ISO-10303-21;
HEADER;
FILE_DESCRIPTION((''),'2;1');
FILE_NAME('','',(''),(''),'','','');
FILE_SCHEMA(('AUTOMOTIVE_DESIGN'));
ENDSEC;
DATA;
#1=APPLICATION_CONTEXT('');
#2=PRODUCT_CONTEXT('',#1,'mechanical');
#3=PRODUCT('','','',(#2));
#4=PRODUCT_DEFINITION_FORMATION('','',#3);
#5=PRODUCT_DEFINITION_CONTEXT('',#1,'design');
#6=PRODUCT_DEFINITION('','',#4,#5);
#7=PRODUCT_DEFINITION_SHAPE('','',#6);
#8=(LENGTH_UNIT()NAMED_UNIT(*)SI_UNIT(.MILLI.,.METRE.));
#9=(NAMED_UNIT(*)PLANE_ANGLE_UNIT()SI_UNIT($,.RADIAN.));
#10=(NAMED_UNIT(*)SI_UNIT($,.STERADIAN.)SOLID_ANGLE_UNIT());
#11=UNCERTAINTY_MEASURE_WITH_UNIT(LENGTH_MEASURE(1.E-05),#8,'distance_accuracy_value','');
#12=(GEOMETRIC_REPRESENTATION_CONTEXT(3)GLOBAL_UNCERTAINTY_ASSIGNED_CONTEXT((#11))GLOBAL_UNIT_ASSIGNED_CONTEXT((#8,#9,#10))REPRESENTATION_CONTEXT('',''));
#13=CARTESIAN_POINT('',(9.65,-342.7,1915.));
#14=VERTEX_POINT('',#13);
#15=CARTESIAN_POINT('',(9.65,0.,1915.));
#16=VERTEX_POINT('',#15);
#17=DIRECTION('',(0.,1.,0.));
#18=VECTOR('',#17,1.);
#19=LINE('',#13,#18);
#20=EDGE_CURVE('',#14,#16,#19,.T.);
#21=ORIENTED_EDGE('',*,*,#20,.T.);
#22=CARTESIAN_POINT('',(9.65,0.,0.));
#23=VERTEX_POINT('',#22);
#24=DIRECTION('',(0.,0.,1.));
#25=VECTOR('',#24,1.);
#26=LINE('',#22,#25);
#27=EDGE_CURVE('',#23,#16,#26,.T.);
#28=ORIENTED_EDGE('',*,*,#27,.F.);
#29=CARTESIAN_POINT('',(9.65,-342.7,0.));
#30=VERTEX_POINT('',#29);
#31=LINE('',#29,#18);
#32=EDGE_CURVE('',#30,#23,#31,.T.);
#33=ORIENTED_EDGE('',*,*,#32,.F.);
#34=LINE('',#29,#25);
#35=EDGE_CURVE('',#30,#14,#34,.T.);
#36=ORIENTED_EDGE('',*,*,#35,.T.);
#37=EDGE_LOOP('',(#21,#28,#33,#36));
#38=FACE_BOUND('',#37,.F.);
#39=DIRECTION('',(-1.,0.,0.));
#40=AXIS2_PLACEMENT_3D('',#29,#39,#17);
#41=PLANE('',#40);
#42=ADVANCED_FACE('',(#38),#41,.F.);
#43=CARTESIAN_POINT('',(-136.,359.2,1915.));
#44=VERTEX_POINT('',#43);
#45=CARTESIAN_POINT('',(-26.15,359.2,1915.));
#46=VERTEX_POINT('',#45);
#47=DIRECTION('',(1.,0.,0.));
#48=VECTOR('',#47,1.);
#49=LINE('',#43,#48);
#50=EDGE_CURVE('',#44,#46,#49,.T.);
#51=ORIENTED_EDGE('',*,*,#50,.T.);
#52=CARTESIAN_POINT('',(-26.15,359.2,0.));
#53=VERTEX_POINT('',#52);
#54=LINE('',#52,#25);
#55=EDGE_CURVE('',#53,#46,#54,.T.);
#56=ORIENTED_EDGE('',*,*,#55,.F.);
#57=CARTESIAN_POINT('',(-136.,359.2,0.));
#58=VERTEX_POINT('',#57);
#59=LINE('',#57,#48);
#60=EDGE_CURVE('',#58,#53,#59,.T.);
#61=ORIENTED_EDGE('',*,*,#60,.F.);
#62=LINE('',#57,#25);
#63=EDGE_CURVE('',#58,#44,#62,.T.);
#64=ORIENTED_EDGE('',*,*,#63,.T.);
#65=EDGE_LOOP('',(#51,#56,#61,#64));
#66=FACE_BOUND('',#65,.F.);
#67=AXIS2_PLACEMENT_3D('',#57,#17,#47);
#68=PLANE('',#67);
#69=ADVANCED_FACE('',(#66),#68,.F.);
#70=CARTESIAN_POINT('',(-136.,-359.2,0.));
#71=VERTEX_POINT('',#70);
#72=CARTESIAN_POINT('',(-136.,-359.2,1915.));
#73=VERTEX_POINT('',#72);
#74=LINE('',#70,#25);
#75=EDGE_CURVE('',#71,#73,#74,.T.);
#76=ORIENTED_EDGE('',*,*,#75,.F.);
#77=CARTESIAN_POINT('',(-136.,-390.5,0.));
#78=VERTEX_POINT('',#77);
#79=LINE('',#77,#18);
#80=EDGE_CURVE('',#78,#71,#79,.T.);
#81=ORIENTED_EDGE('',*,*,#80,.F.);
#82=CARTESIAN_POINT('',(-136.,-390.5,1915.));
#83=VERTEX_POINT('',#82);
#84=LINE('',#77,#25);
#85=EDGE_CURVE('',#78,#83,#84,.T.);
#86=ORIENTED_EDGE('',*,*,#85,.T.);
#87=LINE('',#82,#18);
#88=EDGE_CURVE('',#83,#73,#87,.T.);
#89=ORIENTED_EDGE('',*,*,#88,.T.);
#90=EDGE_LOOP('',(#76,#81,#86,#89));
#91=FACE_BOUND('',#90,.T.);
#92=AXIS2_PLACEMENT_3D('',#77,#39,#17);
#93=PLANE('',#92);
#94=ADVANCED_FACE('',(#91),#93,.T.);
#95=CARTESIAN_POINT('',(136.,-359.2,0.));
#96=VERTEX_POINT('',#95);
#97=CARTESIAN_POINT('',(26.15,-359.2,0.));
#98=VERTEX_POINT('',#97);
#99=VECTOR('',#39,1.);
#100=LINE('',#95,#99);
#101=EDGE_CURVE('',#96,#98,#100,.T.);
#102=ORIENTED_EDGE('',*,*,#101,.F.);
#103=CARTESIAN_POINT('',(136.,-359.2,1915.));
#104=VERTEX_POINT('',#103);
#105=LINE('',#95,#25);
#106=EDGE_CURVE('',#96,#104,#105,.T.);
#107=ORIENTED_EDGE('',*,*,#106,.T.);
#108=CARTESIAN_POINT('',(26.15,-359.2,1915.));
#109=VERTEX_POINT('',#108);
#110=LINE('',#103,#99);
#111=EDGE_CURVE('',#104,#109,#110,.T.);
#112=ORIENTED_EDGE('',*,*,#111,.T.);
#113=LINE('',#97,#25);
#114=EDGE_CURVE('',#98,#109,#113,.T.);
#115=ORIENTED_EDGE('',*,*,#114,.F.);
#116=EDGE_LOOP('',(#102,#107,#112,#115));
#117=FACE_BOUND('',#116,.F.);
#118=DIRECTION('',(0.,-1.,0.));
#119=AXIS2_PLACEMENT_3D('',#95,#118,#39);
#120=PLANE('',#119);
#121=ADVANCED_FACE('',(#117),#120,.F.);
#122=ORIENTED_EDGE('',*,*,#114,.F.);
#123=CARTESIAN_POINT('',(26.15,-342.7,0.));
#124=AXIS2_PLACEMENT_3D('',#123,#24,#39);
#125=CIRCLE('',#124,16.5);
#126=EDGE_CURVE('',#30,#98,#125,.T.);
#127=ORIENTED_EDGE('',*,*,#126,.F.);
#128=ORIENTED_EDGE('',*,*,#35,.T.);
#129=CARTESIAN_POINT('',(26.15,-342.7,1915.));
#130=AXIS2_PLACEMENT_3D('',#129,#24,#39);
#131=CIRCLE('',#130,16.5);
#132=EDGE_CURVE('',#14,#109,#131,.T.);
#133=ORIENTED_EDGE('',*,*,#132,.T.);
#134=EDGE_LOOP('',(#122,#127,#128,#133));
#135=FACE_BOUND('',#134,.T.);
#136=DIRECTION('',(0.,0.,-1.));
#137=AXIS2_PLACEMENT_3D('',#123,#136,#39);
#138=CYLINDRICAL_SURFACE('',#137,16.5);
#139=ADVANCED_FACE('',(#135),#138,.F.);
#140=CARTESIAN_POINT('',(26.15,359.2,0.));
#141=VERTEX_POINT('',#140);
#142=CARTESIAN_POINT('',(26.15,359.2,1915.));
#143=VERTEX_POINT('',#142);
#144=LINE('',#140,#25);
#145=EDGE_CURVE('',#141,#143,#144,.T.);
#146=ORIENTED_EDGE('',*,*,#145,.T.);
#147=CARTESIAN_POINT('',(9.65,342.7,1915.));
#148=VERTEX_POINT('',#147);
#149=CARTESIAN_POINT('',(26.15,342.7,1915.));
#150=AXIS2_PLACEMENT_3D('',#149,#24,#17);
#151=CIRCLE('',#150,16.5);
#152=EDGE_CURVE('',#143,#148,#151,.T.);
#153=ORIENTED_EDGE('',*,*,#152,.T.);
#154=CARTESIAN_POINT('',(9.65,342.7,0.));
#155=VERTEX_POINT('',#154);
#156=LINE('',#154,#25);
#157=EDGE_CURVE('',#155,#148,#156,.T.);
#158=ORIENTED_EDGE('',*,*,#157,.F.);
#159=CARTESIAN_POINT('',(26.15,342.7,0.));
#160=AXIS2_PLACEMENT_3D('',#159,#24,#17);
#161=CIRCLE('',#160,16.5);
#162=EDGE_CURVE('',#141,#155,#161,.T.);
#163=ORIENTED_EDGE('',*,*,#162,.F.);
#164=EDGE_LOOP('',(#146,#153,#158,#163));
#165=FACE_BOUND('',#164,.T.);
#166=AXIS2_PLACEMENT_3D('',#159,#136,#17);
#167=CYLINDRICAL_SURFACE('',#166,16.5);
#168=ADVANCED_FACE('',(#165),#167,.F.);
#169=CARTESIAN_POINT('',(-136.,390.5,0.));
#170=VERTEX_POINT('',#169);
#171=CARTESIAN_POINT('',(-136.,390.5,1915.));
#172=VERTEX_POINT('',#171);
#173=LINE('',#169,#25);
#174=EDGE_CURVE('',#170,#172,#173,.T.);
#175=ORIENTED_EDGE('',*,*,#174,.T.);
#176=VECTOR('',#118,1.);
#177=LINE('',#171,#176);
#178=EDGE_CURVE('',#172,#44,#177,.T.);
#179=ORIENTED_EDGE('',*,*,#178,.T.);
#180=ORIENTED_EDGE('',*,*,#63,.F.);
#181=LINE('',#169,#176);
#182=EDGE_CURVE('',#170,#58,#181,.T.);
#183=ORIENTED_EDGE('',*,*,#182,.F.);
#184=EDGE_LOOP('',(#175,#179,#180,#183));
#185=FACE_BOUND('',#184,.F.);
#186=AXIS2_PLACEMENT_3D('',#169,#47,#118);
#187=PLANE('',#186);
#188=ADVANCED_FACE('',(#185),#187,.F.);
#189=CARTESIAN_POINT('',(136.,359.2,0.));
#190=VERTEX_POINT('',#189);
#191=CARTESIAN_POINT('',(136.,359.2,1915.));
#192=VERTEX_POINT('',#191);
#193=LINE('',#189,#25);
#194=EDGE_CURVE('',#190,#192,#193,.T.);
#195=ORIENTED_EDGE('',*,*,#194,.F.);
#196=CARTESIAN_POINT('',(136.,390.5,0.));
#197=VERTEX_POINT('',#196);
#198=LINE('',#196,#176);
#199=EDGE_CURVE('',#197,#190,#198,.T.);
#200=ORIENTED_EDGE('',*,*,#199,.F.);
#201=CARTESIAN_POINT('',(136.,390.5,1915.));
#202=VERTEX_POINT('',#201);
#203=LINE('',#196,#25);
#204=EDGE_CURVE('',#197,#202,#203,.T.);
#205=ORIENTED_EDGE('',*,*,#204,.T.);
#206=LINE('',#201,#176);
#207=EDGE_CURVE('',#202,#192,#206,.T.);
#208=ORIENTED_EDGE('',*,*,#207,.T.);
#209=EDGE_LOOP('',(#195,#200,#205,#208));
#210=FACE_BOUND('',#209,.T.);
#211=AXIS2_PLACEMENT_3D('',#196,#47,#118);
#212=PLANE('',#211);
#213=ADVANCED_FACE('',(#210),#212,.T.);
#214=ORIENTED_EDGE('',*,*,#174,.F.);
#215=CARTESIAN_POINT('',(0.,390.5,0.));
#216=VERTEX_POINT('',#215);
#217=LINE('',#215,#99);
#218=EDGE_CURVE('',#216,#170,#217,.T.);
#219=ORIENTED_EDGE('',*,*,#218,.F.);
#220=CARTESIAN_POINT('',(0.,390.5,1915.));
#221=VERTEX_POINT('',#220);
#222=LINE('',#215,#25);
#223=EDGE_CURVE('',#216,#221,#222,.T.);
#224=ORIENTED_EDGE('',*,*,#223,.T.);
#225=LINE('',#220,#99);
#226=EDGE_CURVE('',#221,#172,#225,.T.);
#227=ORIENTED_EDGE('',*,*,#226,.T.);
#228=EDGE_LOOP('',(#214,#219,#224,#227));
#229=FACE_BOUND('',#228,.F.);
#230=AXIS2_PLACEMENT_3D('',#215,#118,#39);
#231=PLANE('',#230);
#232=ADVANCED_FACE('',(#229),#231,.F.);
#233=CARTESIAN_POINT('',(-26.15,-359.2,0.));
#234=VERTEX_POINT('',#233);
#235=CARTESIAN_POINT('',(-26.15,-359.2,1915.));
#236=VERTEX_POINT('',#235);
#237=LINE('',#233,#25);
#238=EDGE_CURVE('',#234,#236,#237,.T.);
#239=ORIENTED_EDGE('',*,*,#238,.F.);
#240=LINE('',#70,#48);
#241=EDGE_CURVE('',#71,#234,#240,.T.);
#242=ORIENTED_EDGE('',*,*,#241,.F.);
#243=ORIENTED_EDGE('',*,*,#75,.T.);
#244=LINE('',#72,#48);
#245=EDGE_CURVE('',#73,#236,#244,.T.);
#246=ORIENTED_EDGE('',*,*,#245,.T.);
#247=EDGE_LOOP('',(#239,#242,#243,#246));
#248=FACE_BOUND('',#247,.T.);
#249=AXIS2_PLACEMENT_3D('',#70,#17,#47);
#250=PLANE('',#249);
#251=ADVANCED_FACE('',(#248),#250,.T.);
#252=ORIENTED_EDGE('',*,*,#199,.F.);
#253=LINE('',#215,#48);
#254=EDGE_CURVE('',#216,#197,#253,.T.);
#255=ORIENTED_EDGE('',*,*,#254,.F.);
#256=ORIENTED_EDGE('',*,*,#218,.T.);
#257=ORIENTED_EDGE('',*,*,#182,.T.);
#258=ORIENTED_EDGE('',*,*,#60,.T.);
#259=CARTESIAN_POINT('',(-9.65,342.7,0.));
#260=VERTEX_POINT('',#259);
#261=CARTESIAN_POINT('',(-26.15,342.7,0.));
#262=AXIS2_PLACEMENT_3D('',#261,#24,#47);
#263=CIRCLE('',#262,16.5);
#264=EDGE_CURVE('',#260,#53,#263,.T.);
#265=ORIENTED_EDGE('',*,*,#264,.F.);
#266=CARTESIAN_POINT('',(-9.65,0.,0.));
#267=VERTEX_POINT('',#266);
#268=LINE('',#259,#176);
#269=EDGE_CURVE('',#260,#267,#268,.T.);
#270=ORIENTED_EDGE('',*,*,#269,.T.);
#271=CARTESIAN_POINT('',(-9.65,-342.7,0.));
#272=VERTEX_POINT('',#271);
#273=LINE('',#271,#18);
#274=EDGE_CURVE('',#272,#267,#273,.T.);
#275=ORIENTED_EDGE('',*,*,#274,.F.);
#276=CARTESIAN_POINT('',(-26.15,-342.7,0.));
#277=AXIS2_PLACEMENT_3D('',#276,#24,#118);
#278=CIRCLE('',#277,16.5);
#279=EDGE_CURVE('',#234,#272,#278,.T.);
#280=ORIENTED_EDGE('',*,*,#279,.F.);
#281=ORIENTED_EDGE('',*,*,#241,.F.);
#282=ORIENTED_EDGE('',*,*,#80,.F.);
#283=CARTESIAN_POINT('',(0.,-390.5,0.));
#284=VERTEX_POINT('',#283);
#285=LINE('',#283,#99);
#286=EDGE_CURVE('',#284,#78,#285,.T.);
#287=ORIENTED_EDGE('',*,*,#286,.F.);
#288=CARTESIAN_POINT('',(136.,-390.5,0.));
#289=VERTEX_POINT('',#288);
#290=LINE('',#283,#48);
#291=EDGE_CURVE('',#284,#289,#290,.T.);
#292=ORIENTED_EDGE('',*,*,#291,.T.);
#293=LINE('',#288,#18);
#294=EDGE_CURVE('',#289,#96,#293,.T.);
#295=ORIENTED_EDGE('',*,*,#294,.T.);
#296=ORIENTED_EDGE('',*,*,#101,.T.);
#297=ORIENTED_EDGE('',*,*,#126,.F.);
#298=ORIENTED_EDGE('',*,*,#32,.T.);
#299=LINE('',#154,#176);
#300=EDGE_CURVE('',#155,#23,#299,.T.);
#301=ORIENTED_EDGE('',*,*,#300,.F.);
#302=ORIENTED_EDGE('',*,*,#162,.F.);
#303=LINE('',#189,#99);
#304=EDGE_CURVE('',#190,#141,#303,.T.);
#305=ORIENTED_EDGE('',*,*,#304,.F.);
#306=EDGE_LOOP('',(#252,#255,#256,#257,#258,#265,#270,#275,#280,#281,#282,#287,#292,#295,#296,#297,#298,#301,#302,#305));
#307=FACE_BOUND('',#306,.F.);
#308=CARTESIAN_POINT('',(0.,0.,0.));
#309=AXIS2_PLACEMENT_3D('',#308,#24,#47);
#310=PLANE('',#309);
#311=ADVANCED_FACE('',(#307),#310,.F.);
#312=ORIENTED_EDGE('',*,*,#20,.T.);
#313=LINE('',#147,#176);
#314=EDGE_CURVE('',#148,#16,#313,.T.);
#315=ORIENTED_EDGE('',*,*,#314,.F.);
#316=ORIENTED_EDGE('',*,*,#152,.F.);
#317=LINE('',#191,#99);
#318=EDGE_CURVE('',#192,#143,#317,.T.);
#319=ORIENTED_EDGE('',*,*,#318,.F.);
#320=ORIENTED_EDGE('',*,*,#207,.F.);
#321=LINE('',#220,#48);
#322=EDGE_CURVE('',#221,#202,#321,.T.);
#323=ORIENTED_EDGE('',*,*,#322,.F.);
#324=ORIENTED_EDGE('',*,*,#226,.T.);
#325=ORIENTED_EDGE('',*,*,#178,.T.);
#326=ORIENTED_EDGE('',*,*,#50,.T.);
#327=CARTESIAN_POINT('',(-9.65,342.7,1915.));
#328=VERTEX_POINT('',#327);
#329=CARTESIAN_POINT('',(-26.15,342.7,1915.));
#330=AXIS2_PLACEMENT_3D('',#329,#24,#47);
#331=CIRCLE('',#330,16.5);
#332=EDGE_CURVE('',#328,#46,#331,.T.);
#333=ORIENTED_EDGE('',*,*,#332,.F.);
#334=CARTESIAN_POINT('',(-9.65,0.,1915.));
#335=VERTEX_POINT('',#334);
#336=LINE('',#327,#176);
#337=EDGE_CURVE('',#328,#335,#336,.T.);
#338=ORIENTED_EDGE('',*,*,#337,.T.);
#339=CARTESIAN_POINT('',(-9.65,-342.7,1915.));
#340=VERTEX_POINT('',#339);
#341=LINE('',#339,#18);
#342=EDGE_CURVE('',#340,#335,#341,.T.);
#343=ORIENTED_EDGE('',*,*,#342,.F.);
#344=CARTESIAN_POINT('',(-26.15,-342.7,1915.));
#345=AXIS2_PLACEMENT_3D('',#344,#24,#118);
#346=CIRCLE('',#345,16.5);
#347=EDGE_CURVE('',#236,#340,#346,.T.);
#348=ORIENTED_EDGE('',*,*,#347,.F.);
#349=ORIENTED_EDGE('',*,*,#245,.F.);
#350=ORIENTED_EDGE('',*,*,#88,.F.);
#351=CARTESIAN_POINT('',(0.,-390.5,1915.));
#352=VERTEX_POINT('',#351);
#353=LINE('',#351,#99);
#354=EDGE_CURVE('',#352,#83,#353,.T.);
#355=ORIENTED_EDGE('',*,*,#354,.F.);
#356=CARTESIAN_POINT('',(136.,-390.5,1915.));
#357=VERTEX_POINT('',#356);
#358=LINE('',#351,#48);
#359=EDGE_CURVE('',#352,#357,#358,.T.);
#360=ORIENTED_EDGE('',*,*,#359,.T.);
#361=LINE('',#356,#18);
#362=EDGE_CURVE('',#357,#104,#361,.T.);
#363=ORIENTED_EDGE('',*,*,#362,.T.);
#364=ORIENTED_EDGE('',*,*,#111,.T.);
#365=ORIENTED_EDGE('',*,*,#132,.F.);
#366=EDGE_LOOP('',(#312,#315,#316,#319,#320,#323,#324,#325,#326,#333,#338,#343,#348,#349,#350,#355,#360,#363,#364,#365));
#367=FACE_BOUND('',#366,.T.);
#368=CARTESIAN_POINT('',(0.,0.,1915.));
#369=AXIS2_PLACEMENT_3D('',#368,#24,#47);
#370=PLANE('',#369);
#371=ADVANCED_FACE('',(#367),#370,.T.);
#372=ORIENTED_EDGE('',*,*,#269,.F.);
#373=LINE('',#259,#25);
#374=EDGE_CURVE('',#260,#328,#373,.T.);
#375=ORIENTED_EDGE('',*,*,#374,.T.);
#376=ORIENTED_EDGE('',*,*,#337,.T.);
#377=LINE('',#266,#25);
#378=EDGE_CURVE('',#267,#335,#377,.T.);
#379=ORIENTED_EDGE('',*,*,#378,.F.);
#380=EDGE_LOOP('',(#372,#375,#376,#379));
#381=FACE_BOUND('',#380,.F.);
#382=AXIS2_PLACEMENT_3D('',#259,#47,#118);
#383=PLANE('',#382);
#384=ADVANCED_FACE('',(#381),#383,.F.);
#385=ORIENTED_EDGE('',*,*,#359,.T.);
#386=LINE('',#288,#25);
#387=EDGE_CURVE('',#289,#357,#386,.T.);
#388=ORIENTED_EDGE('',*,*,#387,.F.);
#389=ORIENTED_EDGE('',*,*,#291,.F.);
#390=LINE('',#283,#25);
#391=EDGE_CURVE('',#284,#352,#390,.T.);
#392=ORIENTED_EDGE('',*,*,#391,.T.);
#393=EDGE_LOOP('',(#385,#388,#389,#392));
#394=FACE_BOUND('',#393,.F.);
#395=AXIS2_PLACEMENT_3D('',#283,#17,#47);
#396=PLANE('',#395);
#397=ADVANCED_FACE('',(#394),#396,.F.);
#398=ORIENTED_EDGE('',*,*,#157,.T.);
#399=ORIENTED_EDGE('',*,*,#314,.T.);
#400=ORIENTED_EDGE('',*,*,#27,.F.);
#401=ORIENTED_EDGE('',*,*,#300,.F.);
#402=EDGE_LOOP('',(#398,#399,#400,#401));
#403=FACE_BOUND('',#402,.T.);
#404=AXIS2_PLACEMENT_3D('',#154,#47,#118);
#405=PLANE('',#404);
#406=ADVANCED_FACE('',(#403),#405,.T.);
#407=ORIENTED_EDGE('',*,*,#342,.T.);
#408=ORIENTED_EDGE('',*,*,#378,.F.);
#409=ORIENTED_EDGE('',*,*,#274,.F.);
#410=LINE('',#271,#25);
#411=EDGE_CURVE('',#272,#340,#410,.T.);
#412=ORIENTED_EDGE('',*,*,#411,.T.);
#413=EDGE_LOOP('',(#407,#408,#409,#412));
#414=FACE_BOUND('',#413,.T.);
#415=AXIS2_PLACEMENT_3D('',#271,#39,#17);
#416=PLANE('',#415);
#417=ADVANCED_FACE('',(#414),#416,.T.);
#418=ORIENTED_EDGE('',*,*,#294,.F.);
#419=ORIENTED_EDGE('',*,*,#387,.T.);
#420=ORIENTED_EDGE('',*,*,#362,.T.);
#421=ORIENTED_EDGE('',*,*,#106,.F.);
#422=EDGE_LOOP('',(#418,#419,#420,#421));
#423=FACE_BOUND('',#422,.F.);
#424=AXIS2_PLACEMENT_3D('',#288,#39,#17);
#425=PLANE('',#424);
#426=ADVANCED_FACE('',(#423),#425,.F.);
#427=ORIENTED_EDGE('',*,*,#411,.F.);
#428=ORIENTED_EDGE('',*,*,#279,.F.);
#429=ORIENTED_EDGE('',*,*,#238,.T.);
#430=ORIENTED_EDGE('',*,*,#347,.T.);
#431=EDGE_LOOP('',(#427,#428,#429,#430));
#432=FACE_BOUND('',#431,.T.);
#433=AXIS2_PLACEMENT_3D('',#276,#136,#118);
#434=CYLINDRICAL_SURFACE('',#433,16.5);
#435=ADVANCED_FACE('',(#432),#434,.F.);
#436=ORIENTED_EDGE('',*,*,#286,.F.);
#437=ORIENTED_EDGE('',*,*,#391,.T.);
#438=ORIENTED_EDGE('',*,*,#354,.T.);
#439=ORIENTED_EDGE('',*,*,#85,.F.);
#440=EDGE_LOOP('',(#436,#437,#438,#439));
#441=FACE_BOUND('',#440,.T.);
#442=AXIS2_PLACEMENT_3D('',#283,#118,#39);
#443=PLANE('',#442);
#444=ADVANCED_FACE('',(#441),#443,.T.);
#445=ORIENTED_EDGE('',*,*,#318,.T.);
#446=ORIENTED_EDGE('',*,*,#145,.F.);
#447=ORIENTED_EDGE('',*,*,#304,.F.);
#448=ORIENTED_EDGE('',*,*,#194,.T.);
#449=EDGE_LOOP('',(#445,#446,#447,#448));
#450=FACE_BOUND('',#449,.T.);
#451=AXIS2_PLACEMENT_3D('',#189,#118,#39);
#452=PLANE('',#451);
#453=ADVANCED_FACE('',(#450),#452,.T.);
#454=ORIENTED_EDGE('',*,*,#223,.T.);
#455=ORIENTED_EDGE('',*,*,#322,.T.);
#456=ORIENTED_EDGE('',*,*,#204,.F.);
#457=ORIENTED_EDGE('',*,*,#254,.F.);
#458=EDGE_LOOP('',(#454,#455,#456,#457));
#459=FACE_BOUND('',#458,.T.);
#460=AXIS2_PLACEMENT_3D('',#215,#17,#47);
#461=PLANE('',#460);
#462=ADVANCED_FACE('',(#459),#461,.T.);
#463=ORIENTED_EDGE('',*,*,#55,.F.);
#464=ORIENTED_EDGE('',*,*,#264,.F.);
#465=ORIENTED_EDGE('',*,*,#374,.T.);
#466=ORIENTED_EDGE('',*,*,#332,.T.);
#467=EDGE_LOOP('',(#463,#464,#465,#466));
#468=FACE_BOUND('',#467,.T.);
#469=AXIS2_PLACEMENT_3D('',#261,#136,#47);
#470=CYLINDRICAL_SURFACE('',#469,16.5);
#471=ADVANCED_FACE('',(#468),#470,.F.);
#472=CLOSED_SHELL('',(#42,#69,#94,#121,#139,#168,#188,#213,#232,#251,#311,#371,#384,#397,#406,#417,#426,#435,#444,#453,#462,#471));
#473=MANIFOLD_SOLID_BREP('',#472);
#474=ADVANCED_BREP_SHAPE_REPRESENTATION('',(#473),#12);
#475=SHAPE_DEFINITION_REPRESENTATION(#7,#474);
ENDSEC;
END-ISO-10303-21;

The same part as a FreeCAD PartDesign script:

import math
import FreeCAD as App
import Part
import Sketcher
Q = App.Units.Quantity

doc = App.newDocument("Part")
body = doc.addObject("PartDesign::Body", "Body")

# Sketch on XY plane
sketch1 = doc.addObject("Sketcher::SketchObject", "Sketch")
body.addObject(sketch1)
sketch1.AttachmentSupport = (doc.XY_Plane, [""])
sketch1.MapMode = "FlatFace"
sketch1.addGeometry([
    Part.LineSegment(App.Vector(-136, -359, 0), App.Vector(-136, -390, 0)),  # 0
    Part.LineSegment(App.Vector(-136, -390, 0), App.Vector(136, -390, 0)),  # 1
    Part.LineSegment(App.Vector(136, -390, 0), App.Vector(136, -359, 0)),  # 2
    Part.LineSegment(App.Vector(136, -359, 0), App.Vector(26, -359, 0)),  # 3
    Part.ArcOfCircle(Part.Circle(App.Vector(26, -343, 0), App.Vector(0, 0, 1), 16), math.radians(180), math.radians(270)),  # 4
    Part.LineSegment(App.Vector(10, -343, 0), App.Vector(10, 343, 0)),  # 5
    Part.ArcOfCircle(Part.Circle(App.Vector(26, 343, 0), App.Vector(0, 0, 1), 16), math.radians(90), math.radians(180)),  # 6
    Part.LineSegment(App.Vector(26, 359, 0), App.Vector(136, 359, 0)),  # 7
    Part.LineSegment(App.Vector(136, 359, 0), App.Vector(136, 390, 0)),  # 8
    Part.LineSegment(App.Vector(136, 390, 0), App.Vector(-136, 390, 0)),  # 9
    Part.LineSegment(App.Vector(-136, 390, 0), App.Vector(-136, 359, 0)),  # 10
    Part.LineSegment(App.Vector(-136, 359, 0), App.Vector(-26, 359, 0)),  # 11
    Part.ArcOfCircle(Part.Circle(App.Vector(-26, 343, 0), App.Vector(0, 0, 1), 16), math.radians(0), math.radians(90)),  # 12
    Part.LineSegment(App.Vector(-10, 343, 0), App.Vector(-10, -343, 0)),  # 13
    Part.ArcOfCircle(Part.Circle(App.Vector(-26, -343, 0), App.Vector(0, 0, 1), 16), math.radians(-90), math.radians(0)),  # 14
    Part.LineSegment(App.Vector(-26, -359, 0), App.Vector(-136, -359, 0)),  # 15
], False)
sketch1.addConstraint([
    Sketcher.Constraint("Coincident", 0, 2, 1, 1),
    Sketcher.Constraint("Coincident", 1, 2, 2, 1),
    Sketcher.Constraint("Coincident", 2, 2, 3, 1),
    Sketcher.Constraint("Tangent", 3, 2, 4, 2),
    Sketcher.Constraint("Tangent", 4, 1, 5, 1),
    Sketcher.Constraint("Tangent", 5, 2, 6, 2),
    Sketcher.Constraint("Tangent", 6, 1, 7, 1),
    Sketcher.Constraint("Coincident", 7, 2, 8, 1),
    Sketcher.Constraint("Coincident", 8, 2, 9, 1),
    Sketcher.Constraint("Coincident", 9, 2, 10, 1),
    Sketcher.Constraint("Coincident", 10, 2, 11, 1),
    Sketcher.Constraint("Tangent", 11, 2, 12, 2),
    Sketcher.Constraint("Tangent", 12, 1, 13, 1),
    Sketcher.Constraint("Tangent", 13, 2, 14, 2),
    Sketcher.Constraint("Tangent", 14, 1, 15, 1),
    Sketcher.Constraint("Coincident", 15, 2, 0, 1),
    Sketcher.Constraint("Vertical", 0),
    Sketcher.Constraint("Horizontal", 1),
    Sketcher.Constraint("Vertical", 2),
    Sketcher.Constraint("Horizontal", 3),
    Sketcher.Constraint("Vertical", 5),
    Sketcher.Constraint("Horizontal", 7),
    Sketcher.Constraint("Vertical", 8),
    Sketcher.Constraint("Horizontal", 9),
    Sketcher.Constraint("Vertical", 10),
    Sketcher.Constraint("Horizontal", 11),
    Sketcher.Constraint("Vertical", 13),
    Sketcher.Constraint("Horizontal", 15),
    Sketcher.Constraint("Equal", 4, 6),
    Sketcher.Constraint("Equal", 6, 12),
    Sketcher.Constraint("Equal", 12, 14),
    Sketcher.Constraint("Symmetric", 4, 3, 12, 3, -1, 1),
    Sketcher.Constraint("Symmetric", 0, 2, 8, 2, -1, 1),
    Sketcher.Constraint("Symmetric", 7, 2, 10, 2, -2),
    Sketcher.Constraint("Symmetric", 2, 2, 15, 2, -2),
    Sketcher.Constraint("Radius", 4, Q("16.5 mm")),
    Sketcher.Constraint("DistanceY", 0, 2, 0, 1, Q("31.3 mm")),
    Sketcher.Constraint("DistanceX", 0, 2, -1, 1, Q("136 mm")),
    Sketcher.Constraint("DistanceY", 0, 2, -1, 1, Q("390.5 mm")),
    Sketcher.Constraint("DistanceX", -1, 1, 4, 1, Q("9.65 mm")),
])
pad1 = doc.addObject("PartDesign::Pad", "Pad")
body.addObject(pad1)
pad1.Profile = sketch1
pad1.Length = 1915

doc.recompute()
